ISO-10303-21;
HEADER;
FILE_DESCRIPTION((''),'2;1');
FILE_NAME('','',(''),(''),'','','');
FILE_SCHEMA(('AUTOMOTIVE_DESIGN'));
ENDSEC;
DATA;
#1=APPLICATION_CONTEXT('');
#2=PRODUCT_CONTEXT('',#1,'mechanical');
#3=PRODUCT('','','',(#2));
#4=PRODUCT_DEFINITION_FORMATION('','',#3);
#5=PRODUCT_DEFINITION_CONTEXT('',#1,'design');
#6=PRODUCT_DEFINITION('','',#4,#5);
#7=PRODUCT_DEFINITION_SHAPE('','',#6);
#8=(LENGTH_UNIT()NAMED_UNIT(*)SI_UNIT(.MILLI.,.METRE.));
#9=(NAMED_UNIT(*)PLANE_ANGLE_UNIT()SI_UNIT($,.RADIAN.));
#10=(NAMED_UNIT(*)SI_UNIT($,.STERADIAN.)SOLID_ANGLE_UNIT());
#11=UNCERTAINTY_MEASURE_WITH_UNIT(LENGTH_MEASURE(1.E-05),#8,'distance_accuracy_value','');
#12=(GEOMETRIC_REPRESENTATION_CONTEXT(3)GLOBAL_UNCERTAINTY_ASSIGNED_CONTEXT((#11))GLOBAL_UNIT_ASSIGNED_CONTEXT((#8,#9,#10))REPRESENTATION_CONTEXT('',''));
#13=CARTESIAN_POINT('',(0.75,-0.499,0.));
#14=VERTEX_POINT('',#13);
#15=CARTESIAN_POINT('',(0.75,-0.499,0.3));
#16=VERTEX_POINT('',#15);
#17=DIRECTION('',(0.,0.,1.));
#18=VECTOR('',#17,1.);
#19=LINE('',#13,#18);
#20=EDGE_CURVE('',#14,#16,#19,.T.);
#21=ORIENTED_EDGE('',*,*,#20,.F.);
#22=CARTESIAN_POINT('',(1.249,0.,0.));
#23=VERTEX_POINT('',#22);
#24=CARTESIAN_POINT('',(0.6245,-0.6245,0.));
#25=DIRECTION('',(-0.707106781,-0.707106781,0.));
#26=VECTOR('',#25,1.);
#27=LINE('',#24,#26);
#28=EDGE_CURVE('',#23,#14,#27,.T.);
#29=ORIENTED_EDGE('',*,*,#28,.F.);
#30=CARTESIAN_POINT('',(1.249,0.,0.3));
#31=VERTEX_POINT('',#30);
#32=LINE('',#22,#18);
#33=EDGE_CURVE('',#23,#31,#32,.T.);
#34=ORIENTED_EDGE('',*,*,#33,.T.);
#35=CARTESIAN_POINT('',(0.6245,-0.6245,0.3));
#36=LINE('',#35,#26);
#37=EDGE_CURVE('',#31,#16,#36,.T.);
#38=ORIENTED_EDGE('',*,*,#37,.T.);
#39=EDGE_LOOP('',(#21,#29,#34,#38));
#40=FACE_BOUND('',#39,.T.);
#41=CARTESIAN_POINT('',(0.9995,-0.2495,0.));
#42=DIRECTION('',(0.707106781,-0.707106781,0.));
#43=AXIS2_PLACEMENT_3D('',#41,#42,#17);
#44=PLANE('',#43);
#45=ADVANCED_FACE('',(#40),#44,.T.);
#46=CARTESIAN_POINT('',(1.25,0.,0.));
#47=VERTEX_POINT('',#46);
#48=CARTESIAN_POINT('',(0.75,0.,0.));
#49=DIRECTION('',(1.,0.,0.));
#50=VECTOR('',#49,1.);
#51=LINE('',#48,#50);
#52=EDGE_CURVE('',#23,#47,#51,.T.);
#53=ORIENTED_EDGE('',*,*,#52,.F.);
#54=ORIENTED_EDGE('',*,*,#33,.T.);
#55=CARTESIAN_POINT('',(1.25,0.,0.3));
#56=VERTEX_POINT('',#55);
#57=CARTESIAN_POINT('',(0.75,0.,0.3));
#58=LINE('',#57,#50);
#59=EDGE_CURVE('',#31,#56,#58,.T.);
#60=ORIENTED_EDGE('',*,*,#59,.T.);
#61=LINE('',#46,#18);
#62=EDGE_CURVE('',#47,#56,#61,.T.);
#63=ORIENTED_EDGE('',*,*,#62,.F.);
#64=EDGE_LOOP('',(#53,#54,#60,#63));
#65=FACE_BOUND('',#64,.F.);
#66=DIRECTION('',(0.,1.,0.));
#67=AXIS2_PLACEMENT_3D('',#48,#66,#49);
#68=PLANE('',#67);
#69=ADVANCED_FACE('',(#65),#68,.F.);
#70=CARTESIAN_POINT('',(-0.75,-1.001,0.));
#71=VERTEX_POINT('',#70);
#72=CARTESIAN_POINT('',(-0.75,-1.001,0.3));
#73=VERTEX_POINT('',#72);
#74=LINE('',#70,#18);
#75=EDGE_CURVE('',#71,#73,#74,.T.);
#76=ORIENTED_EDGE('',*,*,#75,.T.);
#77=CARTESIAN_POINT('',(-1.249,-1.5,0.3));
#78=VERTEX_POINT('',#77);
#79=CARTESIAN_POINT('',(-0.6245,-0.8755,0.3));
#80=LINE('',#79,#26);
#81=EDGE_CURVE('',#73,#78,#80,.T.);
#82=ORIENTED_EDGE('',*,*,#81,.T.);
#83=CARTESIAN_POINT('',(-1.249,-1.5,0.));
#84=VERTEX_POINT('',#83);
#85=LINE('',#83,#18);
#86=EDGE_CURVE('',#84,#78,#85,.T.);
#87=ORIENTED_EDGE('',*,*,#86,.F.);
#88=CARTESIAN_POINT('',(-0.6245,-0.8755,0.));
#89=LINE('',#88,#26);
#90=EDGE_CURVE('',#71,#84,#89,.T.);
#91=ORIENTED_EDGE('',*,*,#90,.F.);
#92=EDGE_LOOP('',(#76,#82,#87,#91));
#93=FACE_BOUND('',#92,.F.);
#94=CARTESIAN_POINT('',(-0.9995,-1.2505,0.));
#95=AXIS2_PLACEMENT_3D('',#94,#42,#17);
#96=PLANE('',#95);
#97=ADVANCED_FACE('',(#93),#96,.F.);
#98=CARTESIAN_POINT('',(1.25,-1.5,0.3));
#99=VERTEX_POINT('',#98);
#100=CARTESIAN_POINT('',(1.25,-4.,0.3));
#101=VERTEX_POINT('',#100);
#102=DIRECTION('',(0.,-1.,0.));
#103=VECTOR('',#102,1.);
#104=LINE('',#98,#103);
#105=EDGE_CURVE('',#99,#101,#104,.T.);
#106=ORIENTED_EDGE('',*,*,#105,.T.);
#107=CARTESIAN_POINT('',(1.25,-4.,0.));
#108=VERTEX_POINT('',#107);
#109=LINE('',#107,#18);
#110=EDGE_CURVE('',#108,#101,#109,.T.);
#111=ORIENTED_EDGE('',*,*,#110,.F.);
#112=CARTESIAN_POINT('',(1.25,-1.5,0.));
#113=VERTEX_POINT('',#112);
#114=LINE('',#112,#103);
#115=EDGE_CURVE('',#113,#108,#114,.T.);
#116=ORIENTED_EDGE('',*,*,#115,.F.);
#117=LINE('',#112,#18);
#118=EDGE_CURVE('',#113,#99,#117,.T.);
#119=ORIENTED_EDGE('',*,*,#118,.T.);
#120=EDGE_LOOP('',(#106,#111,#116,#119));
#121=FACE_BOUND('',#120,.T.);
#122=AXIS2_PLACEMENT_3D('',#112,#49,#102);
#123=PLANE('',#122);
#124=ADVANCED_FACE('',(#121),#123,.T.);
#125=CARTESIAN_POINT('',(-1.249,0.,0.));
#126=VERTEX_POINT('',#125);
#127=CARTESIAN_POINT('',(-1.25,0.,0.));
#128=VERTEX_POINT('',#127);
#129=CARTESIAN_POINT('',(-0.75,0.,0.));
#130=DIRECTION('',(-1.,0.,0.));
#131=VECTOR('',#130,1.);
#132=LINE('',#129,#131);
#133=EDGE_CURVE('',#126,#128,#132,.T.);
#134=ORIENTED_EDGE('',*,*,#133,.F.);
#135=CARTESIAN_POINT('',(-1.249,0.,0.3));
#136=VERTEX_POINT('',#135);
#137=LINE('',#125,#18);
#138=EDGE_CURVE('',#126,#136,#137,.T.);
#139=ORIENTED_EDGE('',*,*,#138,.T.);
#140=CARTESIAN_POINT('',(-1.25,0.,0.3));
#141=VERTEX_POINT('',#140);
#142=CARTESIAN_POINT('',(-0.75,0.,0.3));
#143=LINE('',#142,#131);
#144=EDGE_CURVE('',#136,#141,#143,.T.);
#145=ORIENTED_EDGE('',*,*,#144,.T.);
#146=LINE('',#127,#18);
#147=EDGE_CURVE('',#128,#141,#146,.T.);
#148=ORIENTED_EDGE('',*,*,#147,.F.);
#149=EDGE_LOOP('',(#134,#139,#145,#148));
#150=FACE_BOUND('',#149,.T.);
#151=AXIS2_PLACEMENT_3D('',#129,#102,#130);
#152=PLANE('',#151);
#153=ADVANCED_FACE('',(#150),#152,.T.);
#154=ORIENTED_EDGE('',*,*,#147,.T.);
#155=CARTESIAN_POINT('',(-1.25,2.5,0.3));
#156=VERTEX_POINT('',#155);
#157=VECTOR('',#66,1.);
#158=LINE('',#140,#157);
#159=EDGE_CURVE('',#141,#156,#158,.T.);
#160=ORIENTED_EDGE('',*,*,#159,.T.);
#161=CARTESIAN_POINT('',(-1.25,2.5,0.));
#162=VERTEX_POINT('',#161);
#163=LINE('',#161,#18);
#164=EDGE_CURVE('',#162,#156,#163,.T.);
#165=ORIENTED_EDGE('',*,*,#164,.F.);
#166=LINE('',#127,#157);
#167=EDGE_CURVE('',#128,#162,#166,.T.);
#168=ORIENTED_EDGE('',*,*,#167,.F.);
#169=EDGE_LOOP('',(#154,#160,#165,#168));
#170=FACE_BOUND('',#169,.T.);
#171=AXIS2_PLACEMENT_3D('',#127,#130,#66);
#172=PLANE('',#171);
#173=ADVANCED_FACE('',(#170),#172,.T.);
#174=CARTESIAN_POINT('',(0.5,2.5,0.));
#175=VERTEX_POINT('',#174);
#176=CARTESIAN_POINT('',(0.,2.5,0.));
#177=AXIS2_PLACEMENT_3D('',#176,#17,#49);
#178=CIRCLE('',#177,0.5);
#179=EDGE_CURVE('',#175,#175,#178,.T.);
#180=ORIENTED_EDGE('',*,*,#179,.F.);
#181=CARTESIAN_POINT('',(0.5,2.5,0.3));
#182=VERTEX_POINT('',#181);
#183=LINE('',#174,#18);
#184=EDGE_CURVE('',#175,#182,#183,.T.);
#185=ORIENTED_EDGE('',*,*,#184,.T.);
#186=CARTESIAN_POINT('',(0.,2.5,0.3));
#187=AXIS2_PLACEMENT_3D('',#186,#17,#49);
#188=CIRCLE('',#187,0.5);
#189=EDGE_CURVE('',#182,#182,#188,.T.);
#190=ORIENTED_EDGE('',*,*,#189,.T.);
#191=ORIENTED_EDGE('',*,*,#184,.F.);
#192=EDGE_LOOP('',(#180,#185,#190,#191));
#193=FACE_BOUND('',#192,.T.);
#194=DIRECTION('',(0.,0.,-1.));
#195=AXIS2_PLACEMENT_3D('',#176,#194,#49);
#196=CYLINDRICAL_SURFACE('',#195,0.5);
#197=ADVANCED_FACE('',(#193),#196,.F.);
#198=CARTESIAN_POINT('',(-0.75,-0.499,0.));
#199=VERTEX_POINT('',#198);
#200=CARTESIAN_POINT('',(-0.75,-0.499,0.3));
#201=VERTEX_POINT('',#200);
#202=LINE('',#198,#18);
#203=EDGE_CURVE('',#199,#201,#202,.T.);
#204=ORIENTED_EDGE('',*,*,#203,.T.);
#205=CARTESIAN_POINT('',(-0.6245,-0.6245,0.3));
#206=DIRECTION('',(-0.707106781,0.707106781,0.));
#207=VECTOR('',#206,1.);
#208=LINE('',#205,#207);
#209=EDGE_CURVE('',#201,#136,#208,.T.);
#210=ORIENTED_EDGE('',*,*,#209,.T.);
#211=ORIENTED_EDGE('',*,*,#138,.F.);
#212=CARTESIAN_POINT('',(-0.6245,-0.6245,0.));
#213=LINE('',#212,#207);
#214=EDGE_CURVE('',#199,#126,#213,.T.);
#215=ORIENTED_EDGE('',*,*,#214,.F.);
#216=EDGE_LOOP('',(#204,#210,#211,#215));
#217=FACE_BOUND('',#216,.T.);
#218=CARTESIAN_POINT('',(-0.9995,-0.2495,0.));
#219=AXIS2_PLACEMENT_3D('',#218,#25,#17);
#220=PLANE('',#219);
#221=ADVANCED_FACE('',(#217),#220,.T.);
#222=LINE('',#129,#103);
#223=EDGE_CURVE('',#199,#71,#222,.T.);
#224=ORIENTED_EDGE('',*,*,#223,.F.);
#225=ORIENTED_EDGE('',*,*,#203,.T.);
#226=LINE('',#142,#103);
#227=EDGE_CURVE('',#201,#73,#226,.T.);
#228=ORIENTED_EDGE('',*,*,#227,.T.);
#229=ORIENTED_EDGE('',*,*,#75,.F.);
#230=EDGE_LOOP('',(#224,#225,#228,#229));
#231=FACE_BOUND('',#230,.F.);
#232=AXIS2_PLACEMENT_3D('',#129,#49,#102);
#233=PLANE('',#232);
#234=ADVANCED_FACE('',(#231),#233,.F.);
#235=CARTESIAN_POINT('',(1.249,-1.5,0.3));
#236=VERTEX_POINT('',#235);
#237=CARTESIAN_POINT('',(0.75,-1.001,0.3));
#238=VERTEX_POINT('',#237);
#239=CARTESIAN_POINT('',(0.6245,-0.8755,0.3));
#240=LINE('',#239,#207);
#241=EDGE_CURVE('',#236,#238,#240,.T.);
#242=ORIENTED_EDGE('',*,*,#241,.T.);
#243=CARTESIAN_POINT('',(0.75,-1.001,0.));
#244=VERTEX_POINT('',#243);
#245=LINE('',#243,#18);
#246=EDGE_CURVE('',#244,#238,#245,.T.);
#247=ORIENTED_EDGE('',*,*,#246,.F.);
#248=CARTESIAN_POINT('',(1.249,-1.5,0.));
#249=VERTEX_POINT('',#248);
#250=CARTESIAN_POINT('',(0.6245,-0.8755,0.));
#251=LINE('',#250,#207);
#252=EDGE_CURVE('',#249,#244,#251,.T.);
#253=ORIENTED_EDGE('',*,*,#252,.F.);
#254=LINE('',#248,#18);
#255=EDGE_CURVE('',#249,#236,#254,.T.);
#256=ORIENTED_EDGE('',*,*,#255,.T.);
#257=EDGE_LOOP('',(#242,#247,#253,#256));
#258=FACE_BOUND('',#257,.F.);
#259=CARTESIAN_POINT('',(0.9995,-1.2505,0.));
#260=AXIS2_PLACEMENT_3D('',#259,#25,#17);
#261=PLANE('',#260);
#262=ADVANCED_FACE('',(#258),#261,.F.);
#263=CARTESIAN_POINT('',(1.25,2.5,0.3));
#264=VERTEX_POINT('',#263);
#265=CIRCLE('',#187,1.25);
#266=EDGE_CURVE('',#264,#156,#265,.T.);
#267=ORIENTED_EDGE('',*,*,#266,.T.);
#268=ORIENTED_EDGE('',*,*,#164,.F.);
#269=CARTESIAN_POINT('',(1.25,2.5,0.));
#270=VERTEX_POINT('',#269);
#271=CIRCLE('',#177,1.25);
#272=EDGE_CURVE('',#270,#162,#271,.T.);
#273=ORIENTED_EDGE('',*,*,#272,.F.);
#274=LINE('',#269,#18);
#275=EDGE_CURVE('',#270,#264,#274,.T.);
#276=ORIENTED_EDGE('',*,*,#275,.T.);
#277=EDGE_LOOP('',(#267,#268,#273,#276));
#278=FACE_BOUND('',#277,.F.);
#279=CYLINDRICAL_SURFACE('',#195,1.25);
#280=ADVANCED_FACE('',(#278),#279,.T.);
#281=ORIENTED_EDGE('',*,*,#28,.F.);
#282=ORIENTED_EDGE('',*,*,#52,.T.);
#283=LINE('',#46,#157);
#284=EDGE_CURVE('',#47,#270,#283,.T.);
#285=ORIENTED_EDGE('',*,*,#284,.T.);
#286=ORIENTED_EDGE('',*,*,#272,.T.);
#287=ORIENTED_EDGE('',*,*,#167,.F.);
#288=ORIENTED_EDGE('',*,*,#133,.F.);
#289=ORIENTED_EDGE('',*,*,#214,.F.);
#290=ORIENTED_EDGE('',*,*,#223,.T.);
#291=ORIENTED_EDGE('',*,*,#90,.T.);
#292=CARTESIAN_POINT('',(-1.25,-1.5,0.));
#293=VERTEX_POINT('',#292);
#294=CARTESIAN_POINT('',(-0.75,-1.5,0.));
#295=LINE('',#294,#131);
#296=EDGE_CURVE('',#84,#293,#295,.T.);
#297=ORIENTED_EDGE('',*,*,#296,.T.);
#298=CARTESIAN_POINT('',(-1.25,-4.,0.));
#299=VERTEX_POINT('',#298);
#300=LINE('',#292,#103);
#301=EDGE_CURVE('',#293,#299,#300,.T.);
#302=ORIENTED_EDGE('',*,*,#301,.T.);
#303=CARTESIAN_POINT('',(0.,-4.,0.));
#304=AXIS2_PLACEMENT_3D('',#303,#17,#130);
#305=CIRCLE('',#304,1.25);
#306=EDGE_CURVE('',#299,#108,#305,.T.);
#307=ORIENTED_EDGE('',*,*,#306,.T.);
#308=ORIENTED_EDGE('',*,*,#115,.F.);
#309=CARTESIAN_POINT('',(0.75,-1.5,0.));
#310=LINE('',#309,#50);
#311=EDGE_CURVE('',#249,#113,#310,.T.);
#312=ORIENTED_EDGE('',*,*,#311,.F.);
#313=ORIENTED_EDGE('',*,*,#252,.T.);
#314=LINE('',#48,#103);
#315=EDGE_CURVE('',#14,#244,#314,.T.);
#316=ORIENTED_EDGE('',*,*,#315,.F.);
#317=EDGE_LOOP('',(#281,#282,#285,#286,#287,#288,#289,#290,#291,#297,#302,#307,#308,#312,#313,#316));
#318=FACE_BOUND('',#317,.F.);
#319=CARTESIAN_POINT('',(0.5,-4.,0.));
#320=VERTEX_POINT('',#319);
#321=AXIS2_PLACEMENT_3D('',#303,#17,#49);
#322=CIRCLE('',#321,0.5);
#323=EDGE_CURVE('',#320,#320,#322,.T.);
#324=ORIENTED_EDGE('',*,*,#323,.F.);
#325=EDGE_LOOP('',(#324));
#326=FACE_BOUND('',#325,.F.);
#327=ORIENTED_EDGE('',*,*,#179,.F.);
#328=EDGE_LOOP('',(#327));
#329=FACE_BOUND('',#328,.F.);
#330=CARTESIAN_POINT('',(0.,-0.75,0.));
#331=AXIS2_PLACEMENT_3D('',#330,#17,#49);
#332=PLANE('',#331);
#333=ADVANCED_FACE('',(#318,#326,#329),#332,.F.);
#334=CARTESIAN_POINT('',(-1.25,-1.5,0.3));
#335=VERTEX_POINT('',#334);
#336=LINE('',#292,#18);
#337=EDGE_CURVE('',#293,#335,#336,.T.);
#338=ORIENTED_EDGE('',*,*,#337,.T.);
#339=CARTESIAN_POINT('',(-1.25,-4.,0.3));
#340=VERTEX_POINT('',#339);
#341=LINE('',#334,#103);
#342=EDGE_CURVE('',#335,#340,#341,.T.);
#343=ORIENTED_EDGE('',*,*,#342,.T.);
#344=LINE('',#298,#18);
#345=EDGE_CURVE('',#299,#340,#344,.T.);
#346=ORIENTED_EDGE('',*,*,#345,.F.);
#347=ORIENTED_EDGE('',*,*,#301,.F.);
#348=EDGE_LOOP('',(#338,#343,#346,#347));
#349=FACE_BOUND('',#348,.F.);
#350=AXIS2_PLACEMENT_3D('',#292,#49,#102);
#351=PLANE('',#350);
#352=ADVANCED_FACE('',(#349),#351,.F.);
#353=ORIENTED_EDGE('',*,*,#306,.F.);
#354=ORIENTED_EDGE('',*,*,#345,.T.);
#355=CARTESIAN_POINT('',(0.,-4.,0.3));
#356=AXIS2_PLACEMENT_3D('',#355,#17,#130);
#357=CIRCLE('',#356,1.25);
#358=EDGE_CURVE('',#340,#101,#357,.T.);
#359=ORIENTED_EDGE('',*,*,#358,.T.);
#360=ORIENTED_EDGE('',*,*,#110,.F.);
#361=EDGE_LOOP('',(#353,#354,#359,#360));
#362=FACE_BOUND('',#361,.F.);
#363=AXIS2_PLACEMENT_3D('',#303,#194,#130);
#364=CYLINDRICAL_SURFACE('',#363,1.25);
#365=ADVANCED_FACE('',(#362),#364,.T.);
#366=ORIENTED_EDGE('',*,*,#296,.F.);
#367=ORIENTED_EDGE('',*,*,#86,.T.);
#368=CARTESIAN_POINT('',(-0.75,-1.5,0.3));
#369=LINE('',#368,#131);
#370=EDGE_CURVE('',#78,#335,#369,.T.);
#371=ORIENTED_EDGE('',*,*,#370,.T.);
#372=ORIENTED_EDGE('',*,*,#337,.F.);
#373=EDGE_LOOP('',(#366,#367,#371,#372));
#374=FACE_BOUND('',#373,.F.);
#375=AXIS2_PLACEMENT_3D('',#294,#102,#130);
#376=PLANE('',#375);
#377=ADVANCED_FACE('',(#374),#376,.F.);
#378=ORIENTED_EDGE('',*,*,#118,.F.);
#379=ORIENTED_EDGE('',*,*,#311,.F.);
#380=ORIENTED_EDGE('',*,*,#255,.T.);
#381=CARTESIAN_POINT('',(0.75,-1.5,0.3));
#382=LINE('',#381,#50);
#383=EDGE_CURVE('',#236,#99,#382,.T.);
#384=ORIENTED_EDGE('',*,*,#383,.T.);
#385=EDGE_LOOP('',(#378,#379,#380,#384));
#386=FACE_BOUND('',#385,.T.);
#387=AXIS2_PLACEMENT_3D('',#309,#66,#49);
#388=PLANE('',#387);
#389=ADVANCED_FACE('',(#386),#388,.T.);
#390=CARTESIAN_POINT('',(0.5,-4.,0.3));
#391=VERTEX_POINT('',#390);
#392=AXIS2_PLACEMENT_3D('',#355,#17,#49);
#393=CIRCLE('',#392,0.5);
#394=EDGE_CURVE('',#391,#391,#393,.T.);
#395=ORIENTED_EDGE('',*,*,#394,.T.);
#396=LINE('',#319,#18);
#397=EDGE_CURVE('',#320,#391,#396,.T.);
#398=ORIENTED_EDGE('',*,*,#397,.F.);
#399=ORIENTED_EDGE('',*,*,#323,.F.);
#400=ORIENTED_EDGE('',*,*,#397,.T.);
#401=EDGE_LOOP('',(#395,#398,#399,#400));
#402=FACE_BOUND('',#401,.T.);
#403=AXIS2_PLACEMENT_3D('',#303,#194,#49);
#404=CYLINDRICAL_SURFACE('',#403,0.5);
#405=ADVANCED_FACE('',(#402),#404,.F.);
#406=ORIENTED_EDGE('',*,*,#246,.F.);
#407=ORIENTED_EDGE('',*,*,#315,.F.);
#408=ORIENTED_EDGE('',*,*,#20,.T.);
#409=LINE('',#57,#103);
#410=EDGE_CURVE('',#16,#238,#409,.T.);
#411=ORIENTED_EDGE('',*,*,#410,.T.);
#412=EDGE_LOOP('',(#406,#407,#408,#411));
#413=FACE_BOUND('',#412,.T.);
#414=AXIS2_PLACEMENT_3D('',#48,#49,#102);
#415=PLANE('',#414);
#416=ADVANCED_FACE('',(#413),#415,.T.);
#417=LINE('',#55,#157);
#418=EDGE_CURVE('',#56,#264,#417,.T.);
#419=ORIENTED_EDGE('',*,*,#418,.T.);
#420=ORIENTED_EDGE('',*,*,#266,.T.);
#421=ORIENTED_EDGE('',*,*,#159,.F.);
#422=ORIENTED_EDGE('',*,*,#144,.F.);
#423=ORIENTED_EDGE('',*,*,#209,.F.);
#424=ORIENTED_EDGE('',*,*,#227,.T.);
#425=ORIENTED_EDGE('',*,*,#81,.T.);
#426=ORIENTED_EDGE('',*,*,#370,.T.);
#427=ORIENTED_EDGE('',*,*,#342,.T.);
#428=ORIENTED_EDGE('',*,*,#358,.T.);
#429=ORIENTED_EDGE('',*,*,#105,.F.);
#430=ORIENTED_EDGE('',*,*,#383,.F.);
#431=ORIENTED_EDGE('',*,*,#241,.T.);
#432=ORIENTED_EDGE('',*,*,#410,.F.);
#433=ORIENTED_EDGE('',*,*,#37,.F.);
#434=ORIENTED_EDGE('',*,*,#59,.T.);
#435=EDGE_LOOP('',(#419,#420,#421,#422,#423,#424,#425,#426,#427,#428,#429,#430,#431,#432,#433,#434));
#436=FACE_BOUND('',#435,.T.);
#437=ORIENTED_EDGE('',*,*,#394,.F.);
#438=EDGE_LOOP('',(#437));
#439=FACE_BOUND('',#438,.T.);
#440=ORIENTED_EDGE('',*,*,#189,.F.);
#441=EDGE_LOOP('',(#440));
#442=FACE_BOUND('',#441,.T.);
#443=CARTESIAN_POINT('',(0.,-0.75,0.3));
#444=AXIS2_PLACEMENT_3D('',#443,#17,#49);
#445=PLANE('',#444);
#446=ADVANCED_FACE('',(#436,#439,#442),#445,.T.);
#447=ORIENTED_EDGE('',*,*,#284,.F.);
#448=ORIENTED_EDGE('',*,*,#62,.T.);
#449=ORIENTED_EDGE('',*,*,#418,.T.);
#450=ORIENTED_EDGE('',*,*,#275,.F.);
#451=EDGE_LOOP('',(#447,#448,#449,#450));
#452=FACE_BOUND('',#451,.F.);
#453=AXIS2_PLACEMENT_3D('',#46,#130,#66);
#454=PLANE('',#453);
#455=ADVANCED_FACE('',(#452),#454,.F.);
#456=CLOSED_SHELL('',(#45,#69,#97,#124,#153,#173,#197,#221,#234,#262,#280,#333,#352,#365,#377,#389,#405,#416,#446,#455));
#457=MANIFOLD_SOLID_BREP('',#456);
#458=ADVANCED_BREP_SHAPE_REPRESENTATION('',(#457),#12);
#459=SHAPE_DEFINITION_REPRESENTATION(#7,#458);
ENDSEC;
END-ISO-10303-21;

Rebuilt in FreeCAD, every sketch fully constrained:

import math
import FreeCAD as App
import Part
import Sketcher

V = App.Vector


def edges_at(feature, points):
    """Names of the edges that pass closest to the given points."""
    edges = feature.Shape.Edges
    near = lambda p: min(range(len(edges)), key=lambda i: edges[i].distToShape(Part.Vertex(*p))[0])
    return sorted({f"Edge{near(p) + 1}" for p in points})

doc = App.newDocument("Part")
body = doc.addObject("PartDesign::Body", "Body")

# Sketch on XY plane
sketch1 = body.newObject("Sketcher::SketchObject", "Sketch")
sketch1.AttachmentSupport = (doc.getObject("XY_Plane"), [""])
sketch1.MapMode = "FlatFace"
sketch1.addGeometry(Part.LineSegment(V(-0.75, 0, 0), V(-0.75, -1.5, 0)), False)
sketch1.addGeometry(Part.LineSegment(V(-0.75, -1.5, 0), V(-1.25, -1.5, 0)), False)
sketch1.addGeometry(Part.LineSegment(V(-1.25, -1.5, 0), V(-1.25, -4, 0)), False)
sketch1.addGeometry(Part.ArcOfCircle(Part.Circle(V(0, -4, 0), V(0, 0, 1), 1.25), math.radians(180), math.radians(360)), False)
sketch1.addGeometry(Part.LineSegment(V(1.25, -4, 0), V(1.25, -1.5, 0)), False)
sketch1.addGeometry(Part.LineSegment(V(1.25, -1.5, 0), V(0.75, -1.5, 0)), False)
sketch1.addGeometry(Part.LineSegment(V(0.75, -1.5, 0), V(0.75, 0, 0)), False)
sketch1.addGeometry(Part.LineSegment(V(0.75, 0, 0), V(1.25, 0, 0)), False)
sketch1.addGeometry(Part.LineSegment(V(1.25, 0, 0), V(1.25, 2.5, 0)), False)
sketch1.addGeometry(Part.ArcOfCircle(Part.Circle(V(0, 2.5, 0), V(0, 0, 1), 1.25), math.radians(0), math.radians(180)), False)
sketch1.addGeometry(Part.LineSegment(V(-1.25, 2.5, 0), V(-1.25, 0, 0)), False)
sketch1.addGeometry(Part.LineSegment(V(-1.25, 0, 0), V(-0.75, 0, 0)), False)
sketch1.addGeometry(Part.Circle(V(0, -4, 0), V(0, 0, 1), 0.5), False)
sketch1.addGeometry(Part.Circle(V(0, 2.5, 0), V(0, 0, 1), 0.5), False)
sketch1.addConstraint(Sketcher.Constraint("Coincident", 0, 2, 1, 1))
sketch1.addConstraint(Sketcher.Constraint("Coincident", 1, 2, 2, 1))
sketch1.addConstraint(Sketcher.Constraint("Tangent", 2, 2, 3, 1))
sketch1.addConstraint(Sketcher.Constraint("Tangent", 3, 2, 4, 1))
sketch1.addConstraint(Sketcher.Constraint("Coincident", 4, 2, 5, 1))
sketch1.addConstraint(Sketcher.Constraint("Coincident", 5, 2, 6, 1))
sketch1.addConstraint(Sketcher.Constraint("Coincident", 6, 2, 7, 1))
sketch1.addConstraint(Sketcher.Constraint("Coincident", 7, 2, 8, 1))
sketch1.addConstraint(Sketcher.Constraint("Tangent", 8, 2, 9, 1))
sketch1.addConstraint(Sketcher.Constraint("Tangent", 9, 2, 10, 1))
sketch1.addConstraint(Sketcher.Constraint("Coincident", 10, 2, 11, 1))
sketch1.addConstraint(Sketcher.Constraint("Coincident", 11, 2, 0, 1))
sketch1.addConstraint(Sketcher.Constraint("Vertical", 0))
sketch1.addConstraint(Sketcher.Constraint("Horizontal", 1))
sketch1.addConstraint(Sketcher.Constraint("Vertical", 2))
sketch1.addConstraint(Sketcher.Constraint("Vertical", 4))
sketch1.addConstraint(Sketcher.Constraint("Horizontal", 5))
sketch1.addConstraint(Sketcher.Constraint("Vertical", 6))
sketch1.addConstraint(Sketcher.Constraint("Horizontal", 7))
sketch1.addConstraint(Sketcher.Constraint("Vertical", 8))
sketch1.addConstraint(Sketcher.Constraint("Vertical", 10))
sketch1.addConstraint(Sketcher.Constraint("Horizontal", 11))
sketch1.addConstraint(Sketcher.Constraint("Coincident", 12, 3, 3, 3))
sketch1.addConstraint(Sketcher.Constraint("Coincident", 13, 3, 9, 3))
sketch1.addConstraint(Sketcher.Constraint("Equal", 3, 9))
sketch1.addConstraint(Sketcher.Constraint("Equal", 12, 13))
sketch1.addConstraint(Sketcher.Constraint("Symmetric", 7, 2, 10, 2, -1, 1))
sketch1.addConstraint(Sketcher.Constraint("Symmetric", 1, 2, 4, 2, -2))
sketch1.addConstraint(Sketcher.Constraint("Symmetric", 6, 2, 11, 2, -2))
sketch1.addConstraint(Sketcher.Constraint("Equal", 4, 8))
sketch1.addConstraint(Sketcher.Constraint("Diameter", 12, 1.0))
sketch1.addConstraint(Sketcher.Constraint("Radius", 3, 1.25))
sketch1.addConstraint(Sketcher.Constraint("DistanceX", 1, 2, 1, 1, 0.5))
sketch1.addConstraint(Sketcher.Constraint("DistanceY", 0, 2, 0, 1, 1.5))
sketch1.addConstraint(Sketcher.Constraint("DistanceY", 2, 2, 2, 1, 2.5))
pad1 = body.newObject("PartDesign::Pad", "Pad")
pad1.Profile = sketch1
pad1.Length = 0.3
doc.recompute()

chamfer = body.newObject("PartDesign::Chamfer", "Chamfer")
chamfer.Base = (pad1, edges_at(pad1, [
    (-0.75, 0, 0.15),
    (-0.75, -1.5, 0.15),
    (0.75, 0, 0.15),
    (0.75, -1.5, 0.15),
]))
chamfer.Size = 0.499

doc.recompute()
